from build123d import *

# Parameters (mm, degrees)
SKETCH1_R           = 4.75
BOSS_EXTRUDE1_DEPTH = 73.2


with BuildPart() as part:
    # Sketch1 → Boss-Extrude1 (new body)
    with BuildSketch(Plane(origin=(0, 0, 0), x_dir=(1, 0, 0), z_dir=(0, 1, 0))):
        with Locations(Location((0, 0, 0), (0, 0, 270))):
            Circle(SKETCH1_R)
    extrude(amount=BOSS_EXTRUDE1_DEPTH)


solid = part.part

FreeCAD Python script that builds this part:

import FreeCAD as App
import Part
import Sketcher
from FreeCAD import Vector

doc = App.newDocument("Part")
body = doc.addObject("PartDesign::Body", "Body")

sketch1 = body.newObject("Sketcher::SketchObject", "Sketch")
sketch1.AttachmentSupport = (doc.getObject("XZ_Plane"), [""])
sketch1.MapMode = "FlatFace"
sketch1.addGeometry(Part.Circle(Vector(0, 0, 0), Vector(0, 0, 1), 4.8), False)
sketch1.addConstraint(Sketcher.Constraint("Coincident", 0, 3, -1, 1))
sketch1.addConstraint(Sketcher.Constraint("Diameter", 0, 9.5))
pad1 = body.newObject("PartDesign::Pad", "Pad")
pad1.Profile = sketch1
pad1.Length = 73.2
pad1.Reversed = True

doc.recompute()
